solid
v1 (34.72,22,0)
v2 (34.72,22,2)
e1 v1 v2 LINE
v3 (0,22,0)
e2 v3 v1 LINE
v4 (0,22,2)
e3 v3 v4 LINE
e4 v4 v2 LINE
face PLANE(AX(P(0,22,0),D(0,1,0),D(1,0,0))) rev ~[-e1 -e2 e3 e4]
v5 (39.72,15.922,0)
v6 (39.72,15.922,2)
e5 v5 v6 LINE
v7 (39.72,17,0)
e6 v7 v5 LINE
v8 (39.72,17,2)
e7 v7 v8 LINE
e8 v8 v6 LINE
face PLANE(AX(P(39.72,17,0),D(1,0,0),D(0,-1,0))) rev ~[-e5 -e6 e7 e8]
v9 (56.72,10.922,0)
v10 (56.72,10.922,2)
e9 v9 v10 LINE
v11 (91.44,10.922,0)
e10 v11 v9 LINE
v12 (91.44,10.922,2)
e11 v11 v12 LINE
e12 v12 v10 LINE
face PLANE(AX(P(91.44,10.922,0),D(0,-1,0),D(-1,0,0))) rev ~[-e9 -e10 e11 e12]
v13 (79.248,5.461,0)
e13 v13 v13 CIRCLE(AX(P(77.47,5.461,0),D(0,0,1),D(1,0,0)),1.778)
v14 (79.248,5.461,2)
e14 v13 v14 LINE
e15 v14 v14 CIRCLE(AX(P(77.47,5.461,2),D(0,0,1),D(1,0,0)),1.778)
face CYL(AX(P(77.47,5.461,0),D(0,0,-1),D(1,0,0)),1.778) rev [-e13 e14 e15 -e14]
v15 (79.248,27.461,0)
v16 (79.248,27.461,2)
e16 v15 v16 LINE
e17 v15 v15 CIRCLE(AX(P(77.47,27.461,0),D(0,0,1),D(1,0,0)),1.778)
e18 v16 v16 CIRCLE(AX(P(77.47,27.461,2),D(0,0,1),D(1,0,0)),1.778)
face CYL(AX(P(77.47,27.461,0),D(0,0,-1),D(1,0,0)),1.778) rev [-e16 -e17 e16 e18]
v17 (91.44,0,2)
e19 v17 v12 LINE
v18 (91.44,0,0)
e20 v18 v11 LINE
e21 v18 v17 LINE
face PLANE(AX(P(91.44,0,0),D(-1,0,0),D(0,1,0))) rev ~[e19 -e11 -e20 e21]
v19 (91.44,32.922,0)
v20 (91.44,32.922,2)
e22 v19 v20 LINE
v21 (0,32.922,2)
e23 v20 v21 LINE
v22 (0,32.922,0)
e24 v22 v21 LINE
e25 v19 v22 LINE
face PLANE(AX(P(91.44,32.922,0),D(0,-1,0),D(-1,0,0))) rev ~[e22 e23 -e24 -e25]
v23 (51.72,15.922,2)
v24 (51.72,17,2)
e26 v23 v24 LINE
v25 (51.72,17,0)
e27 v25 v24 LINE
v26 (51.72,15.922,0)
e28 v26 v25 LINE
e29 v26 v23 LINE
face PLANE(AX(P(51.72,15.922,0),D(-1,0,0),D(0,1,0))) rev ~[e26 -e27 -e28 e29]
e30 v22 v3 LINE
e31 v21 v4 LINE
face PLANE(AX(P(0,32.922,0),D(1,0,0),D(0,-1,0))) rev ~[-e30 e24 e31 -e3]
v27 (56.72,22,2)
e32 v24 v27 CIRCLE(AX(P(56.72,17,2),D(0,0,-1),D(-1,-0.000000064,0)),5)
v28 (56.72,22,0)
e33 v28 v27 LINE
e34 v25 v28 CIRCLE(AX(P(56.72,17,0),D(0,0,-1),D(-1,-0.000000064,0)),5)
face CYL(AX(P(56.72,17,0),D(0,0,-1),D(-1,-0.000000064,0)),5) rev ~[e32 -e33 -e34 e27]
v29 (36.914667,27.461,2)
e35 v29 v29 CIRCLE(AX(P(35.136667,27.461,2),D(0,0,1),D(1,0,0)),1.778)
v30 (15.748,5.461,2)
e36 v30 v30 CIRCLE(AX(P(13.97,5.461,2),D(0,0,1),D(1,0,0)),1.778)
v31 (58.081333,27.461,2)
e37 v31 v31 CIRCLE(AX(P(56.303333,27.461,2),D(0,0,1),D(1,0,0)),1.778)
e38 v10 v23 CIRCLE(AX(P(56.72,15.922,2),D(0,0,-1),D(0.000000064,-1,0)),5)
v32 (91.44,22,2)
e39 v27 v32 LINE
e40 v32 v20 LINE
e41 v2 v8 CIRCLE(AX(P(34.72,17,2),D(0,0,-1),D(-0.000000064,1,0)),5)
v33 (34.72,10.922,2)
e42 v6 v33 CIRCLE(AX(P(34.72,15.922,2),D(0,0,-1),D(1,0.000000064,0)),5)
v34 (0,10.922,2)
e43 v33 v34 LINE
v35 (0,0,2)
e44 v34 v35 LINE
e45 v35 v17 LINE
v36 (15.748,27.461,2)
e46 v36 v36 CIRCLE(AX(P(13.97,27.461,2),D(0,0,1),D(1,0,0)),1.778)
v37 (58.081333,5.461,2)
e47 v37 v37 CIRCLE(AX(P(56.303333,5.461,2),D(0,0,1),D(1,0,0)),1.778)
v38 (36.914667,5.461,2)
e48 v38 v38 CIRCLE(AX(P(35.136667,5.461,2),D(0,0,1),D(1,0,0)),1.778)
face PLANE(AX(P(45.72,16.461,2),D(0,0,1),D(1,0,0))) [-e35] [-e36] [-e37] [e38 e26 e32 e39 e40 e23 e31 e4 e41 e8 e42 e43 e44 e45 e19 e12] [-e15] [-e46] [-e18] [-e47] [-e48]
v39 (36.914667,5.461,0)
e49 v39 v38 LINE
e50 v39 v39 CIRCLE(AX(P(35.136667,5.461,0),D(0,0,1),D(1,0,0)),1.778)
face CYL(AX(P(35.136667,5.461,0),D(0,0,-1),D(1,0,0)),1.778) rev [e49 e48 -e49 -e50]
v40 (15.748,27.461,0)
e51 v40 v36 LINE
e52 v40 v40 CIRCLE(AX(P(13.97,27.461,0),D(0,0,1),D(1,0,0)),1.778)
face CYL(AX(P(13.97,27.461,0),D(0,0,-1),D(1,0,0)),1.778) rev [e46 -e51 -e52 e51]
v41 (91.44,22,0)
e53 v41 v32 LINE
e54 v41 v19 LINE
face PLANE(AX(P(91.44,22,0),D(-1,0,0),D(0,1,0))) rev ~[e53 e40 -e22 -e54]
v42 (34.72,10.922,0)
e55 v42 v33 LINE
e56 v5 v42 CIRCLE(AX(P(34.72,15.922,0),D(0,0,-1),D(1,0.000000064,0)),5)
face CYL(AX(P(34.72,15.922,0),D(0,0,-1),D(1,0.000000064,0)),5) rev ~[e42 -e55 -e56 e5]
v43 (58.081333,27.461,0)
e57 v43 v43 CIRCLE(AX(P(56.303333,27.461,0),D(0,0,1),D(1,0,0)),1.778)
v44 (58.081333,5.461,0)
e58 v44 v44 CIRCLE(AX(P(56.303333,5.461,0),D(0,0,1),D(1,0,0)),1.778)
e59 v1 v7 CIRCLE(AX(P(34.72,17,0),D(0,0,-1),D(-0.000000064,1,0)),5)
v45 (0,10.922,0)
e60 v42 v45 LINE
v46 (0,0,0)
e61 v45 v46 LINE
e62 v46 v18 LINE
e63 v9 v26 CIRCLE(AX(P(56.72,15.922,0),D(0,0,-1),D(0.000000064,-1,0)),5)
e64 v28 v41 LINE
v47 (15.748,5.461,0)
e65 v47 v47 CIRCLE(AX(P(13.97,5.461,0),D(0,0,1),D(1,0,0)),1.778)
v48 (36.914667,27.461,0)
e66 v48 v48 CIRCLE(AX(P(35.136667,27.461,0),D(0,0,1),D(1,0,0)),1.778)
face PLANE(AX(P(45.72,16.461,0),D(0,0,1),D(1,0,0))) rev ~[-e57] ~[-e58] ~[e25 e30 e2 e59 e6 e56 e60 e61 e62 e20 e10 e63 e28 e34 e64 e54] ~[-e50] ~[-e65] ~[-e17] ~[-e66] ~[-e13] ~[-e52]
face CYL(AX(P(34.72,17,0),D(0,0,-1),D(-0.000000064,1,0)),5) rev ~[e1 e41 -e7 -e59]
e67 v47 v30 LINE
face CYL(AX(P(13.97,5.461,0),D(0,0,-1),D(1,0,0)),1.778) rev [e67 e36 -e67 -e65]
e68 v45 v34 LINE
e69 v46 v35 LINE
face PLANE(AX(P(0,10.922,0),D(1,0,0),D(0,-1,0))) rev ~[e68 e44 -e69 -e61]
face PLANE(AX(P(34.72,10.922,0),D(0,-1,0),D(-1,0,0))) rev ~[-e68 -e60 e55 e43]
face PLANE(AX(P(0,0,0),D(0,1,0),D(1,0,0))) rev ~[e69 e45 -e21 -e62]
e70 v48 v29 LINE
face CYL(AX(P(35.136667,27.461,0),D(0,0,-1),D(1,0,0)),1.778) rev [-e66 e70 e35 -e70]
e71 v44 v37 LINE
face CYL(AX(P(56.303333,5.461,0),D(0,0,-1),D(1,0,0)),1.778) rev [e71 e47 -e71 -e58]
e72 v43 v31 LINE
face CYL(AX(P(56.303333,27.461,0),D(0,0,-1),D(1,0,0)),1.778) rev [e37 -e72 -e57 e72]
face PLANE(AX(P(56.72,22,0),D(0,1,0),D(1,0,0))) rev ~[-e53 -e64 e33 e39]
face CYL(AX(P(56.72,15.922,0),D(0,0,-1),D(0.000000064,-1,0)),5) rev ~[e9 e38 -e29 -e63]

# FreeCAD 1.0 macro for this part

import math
import FreeCAD as App
import Part
import Sketcher
Q = App.Units.Quantity

doc = App.newDocument("Part")
body = doc.addObject("PartDesign::Body", "Body")

# Sketch on XY plane
sketch1 = body.newObject("Sketcher::SketchObject", "Sketch")
sketch1.AttachmentSupport = (doc.getObject("XY_Plane"), [""])
sketch1.MapMode = "FlatFace"
sketch1.addGeometry(Part.LineSegment(App.Vector(0, 10.922, 0), App.Vector(0, 0, 0)), False)
sketch1.addGeometry(Part.LineSegment(App.Vector(0, 0, 0), App.Vector(91.44, 0, 0)), False)
sketch1.addGeometry(Part.LineSegment(App.Vector(91.44, 0, 0), App.Vector(91.44, 10.922, 0)), False)
sketch1.addGeometry(Part.LineSegment(App.Vector(91.44, 10.922, 0), App.Vector(56.72, 10.922, 0)), False)
sketch1.addGeometry(Part.ArcOfCircle(Part.Circle(App.Vector(56.72, 15.922, 0), App.Vector(0, 0, 1), 5), math.radians(179.999996), math.radians(270.000004)), False)
sketch1.addGeometry(Part.LineSegment(App.Vector(51.72, 15.922, 0), App.Vector(51.72, 17, 0)), False)
sketch1.addGeometry(Part.ArcOfCircle(Part.Circle(App.Vector(56.72, 17, 0), App.Vector(0, 0, 1), 5), math.radians(89.999996), math.radians(180.000004)), False)
sketch1.addGeometry(Part.LineSegment(App.Vector(56.72, 22, 0), App.Vector(91.44, 22, 0)), False)
sketch1.addGeometry(Part.LineSegment(App.Vector(91.44, 22, 0), App.Vector(91.44, 32.922, 0)), False)
sketch1.addGeometry(Part.LineSegment(App.Vector(91.44, 32.922, 0), App.Vector(0, 32.922, 0)), False)
sketch1.addGeometry(Part.LineSegment(App.Vector(0, 32.922, 0), App.Vector(0, 22, 0)), False)
sketch1.addGeometry(Part.LineSegment(App.Vector(0, 22, 0), App.Vector(34.72, 22, 0)), False)
sketch1.addGeometry(Part.ArcOfCircle(Part.Circle(App.Vector(34.72, 17, 0), App.Vector(0, 0, 1), 5), math.radians(-0.000004), math.radians(90.000004)), False)
sketch1.addGeometry(Part.LineSegment(App.Vector(39.72, 17, 0), App.Vector(39.72, 15.922, 0)), False)
sketch1.addGeometry(Part.ArcOfCircle(Part.Circle(App.Vector(34.72, 15.922, 0), App.Vector(0, 0, 1), 5), math.radians(-90.000004), math.radians(0.000004)), False)
sketch1.addGeometry(Part.LineSegment(App.Vector(34.72, 10.922, 0), App.Vector(0, 10.922, 0)), False)
sketch1.addGeometry(Part.Circle(App.Vector(13.97, 5.461, 0), App.Vector(0, 0, 1), 1.778), False)
sketch1.addGeometry(Part.Circle(App.Vector(35.136667, 5.461, 0), App.Vector(0, 0, 1), 1.778), False)
sketch1.addGeometry(Part.Circle(App.Vector(56.303333, 5.461, 0), App.Vector(0, 0, 1), 1.778), False)
sketch1.addGeometry(Part.Circle(App.Vector(77.47, 5.461, 0), App.Vector(0, 0, 1), 1.778), False)
sketch1.addGeometry(Part.Circle(App.Vector(13.97, 27.461, 0), App.Vector(0, 0, 1), 1.778), False)
sketch1.addGeometry(Part.Circle(App.Vector(35.136667, 27.461, 0), App.Vector(0, 0, 1), 1.778), False)
sketch1.addGeometry(Part.Circle(App.Vector(56.303333, 27.461, 0), App.Vector(0, 0, 1), 1.778), False)
sketch1.addGeometry(Part.Circle(App.Vector(77.47, 27.461, 0), App.Vector(0, 0, 1), 1.778), False)
sketch1.addConstraint(Sketcher.Constraint("Coincident", 0, 2, 1, 1))
sketch1.addConstraint(Sketcher.Constraint("Coincident", 1, 2, 2, 1))
sketch1.addConstraint(Sketcher.Constraint("Coincident", 2, 2, 3, 1))
sketch1.addConstraint(Sketcher.Constraint("Tangent", 3, 2, 4, 2))
sketch1.addConstraint(Sketcher.Constraint("Tangent", 4, 1, 5, 1))
sketch1.addConstraint(Sketcher.Constraint("Tangent", 5, 2, 6, 2))
sketch1.addConstraint(Sketcher.Constraint("Tangent", 6, 1, 7, 1))
sketch1.addConstraint(Sketcher.Constraint("Coincident", 7, 2, 8, 1))
sketch1.addConstraint(Sketcher.Constraint("Coincident", 8, 2, 9, 1))
sketch1.addConstraint(Sketcher.Constraint("Coincident", 9, 2, 10, 1))
sketch1.addConstraint(Sketcher.Constraint("Coincident", 10, 2, 11, 1))
sketch1.addConstraint(Sketcher.Constraint("Tangent", 11, 2, 12, 2))
sketch1.addConstraint(Sketcher.Constraint("Tangent", 12, 1, 13, 1))
sketch1.addConstraint(Sketcher.Constraint("Tangent", 13, 2, 14, 2))
sketch1.addConstraint(Sketcher.Constraint("Tangent", 14, 1, 15, 1))
sketch1.addConstraint(Sketcher.Constraint("Coincident", 15, 2, 0, 1))
sketch1.addConstraint(Sketcher.Constraint("Vertical", 0))
sketch1.addConstraint(Sketcher.Constraint("Horizontal", 1))
sketch1.addConstraint(Sketcher.Constraint("Vertical", 2))
sketch1.addConstraint(Sketcher.Constraint("Horizontal", 3))
sketch1.addConstraint(Sketcher.Constraint("Vertical", 5))
sketch1.addConstraint(Sketcher.Constraint("Horizontal", 7))
sketch1.addConstraint(Sketcher.Constraint("Vertical", 8))
sketch1.addConstraint(Sketcher.Constraint("Horizontal", 9))
sketch1.addConstraint(Sketcher.Constraint("Vertical", 10))
sketch1.addConstraint(Sketcher.Constraint("Horizontal", 11))
sketch1.addConstraint(Sketcher.Constraint("Vertical", 13))
sketch1.addConstraint(Sketcher.Constraint("Horizontal", 15))
sketch1.addConstraint(Sketcher.Constraint("Coincident", 0, 2, -1, 1))
sketch1.addConstraint(Sketcher.Constraint("Equal", 4, 6))
sketch1.addConstraint(Sketcher.Constraint("Equal", 6, 12))
sketch1.addConstraint(Sketcher.Constraint("Equal", 12, 14))
sketch1.addConstraint(Sketcher.Constraint("Equal", 16, 17))
sketch1.addConstraint(Sketcher.Constraint("Equal", 17, 18))
sketch1.addConstraint(Sketcher.Constraint("Equal", 18, 19))
sketch1.addConstraint(Sketcher.Constraint("Equal", 19, 20))
sketch1.addConstraint(Sketcher.Constraint("Equal", 20, 21))
sketch1.addConstraint(Sketcher.Constraint("Equal", 21, 22))
sketch1.addConstraint(Sketcher.Constraint("Equal", 22, 23))
sketch1.addConstraint(Sketcher.Constraint("PointOnObject", 9, 2, -2))
sketch1.addConstraint(Sketcher.Constraint("Horizontal", 6, 3, 12, 3))
sketch1.addConstraint(Sketcher.Constraint("Horizontal", 4, 3, 14, 3))
sketch1.addConstraint(Sketcher.Constraint("Horizontal", 16, 3, 17, 3))
sketch1.addConstraint(Sketcher.Constraint("Horizontal", 17, 3, 18, 3))
sketch1.addConstraint(Sketcher.Constraint("Horizontal", 18, 3, 19, 3))
sketch1.addConstraint(Sketcher.Constraint("Horizontal", 20, 3, 21, 3))
sketch1.addConstraint(Sketcher.Constraint("Horizontal", 21, 3, 22, 3))
sketch1.addConstraint(Sketcher.Constraint("Horizontal", 22, 3, 23, 3))
sketch1.addConstraint(Sketcher.Constraint("Vertical", 16, 3, 20, 3))
sketch1.addConstraint(Sketcher.Constraint("Vertical", 17, 3, 21, 3))
sketch1.addConstraint(Sketcher.Constraint("Vertical", 18, 3, 22, 3))
sketch1.addConstraint(Sketcher.Constraint("Vertical", 19, 3, 23, 3))
sketch1.addConstraint(Sketcher.Constraint("Vertical", 2, 2, 7, 2))
sketch1.addConstraint(Sketcher.Constraint("Equal", 7, 11))
sketch1.addConstraint(Sketcher.Constraint("Equal", 2, 8))
sketch1.addConstraint(Sketcher.Constraint("Diameter", 16, Q("0.14 in")))
sketch1.addConstraint(Sketcher.Constraint("DistanceX", 1, 1, 1, 2, Q("3.6 in")))
sketch1.addConstraint(Sketcher.Constraint("DistanceY", 0, 2, 0, 1, Q("0.43 in")))
sketch1.addConstraint(Sketcher.Constraint("DistanceX", -1, 1, 16, 3, Q("0.55 in")))
sketch1.addConstraint(Sketcher.Constraint("DistanceX", -1, 1, 19, 3, Q("3.05 in")))
sketch1.addConstraint(Sketcher.Constraint("Radius", 4, Q("5 mm")))
sketch1.addConstraint(Sketcher.Constraint("DistanceY", -1, 1, 16, 3, Q("0.215 in")))
sketch1.addConstraint(Sketcher.Constraint("DistanceY", 6, 1, 22, 3, Q("0.215 in")))
sketch1.addConstraint(Sketcher.Constraint("DistanceX", 3, 2, 3, 1, Q("34.72 mm")))
sketch1.addConstraint(Sketcher.Constraint("DistanceY", 5, 1, 5, 2, Q("1.078 mm")))
sketch1.addConstraint(Sketcher.Constraint("DistanceX", -1, 1, 17, 3, Q("35.136667 mm")))
sketch1.addConstraint(Sketcher.Constraint("DistanceX", -1, 1, 18, 3, Q("56.303333 mm")))
pad1 = body.newObject("PartDesign::Pad", "Pad")
pad1.Profile = sketch1
pad1.Length = 2

doc.recompute()
